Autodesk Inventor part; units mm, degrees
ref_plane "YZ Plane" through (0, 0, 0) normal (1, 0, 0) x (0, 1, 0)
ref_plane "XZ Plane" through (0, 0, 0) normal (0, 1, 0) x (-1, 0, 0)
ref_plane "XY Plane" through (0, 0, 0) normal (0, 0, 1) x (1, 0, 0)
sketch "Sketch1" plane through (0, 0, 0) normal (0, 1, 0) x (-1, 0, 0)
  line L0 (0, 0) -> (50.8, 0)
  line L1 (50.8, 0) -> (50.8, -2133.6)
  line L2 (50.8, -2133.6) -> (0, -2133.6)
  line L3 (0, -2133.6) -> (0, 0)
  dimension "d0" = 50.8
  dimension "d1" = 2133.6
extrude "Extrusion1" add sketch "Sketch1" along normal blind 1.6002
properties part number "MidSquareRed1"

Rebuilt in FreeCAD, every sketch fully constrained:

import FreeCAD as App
import Part
import Sketcher

V = App.Vector
Q = App.Units.Quantity

doc = App.newDocument("Part")
body = doc.addObject("PartDesign::Body", "Body")

sketch1 = body.newObject("Sketcher::SketchObject", "Sketch")
sketch1.AttachmentSupport = (doc.getObject("XZ_Plane"), [""])
sketch1.MapMode = "FlatFace"
sketch1.addGeometry([
    Part.LineSegment(V(-51, 0, 0), V(0, 0, 0)),
    Part.LineSegment(V(0, 0, 0), V(0, -2134, 0)),
    Part.LineSegment(V(0, -2134, 0), V(-51, -2134, 0)),
    Part.LineSegment(V(-51, -2134, 0), V(-51, 0, 0)),
], False)
sketch1.addConstraint([
    Sketcher.Constraint("Coincident", 0, 2, 1, 1),
    Sketcher.Constraint("Coincident", 1, 2, 2, 1),
    Sketcher.Constraint("Coincident", 2, 2, 3, 1),
    Sketcher.Constraint("Coincident", 3, 2, 0, 1),
    Sketcher.Constraint("Horizontal", 0),
    Sketcher.Constraint("Vertical", 1),
    Sketcher.Constraint("Horizontal", 2),
    Sketcher.Constraint("Vertical", 3),
    Sketcher.Constraint("Coincident", 0, 2, -1, 1),
    Sketcher.Constraint("DistanceX", 0, 1, 0, 2, Q("2 in")),
    Sketcher.Constraint("DistanceY", 1, 2, 1, 1, Q("84 in")),
])
pad1 = body.newObject("PartDesign::Pad", "Pad")
pad1.Profile = sketch1
pad1.Length = Q("0.063 in")
pad1.Reversed = True

doc.recompute()
